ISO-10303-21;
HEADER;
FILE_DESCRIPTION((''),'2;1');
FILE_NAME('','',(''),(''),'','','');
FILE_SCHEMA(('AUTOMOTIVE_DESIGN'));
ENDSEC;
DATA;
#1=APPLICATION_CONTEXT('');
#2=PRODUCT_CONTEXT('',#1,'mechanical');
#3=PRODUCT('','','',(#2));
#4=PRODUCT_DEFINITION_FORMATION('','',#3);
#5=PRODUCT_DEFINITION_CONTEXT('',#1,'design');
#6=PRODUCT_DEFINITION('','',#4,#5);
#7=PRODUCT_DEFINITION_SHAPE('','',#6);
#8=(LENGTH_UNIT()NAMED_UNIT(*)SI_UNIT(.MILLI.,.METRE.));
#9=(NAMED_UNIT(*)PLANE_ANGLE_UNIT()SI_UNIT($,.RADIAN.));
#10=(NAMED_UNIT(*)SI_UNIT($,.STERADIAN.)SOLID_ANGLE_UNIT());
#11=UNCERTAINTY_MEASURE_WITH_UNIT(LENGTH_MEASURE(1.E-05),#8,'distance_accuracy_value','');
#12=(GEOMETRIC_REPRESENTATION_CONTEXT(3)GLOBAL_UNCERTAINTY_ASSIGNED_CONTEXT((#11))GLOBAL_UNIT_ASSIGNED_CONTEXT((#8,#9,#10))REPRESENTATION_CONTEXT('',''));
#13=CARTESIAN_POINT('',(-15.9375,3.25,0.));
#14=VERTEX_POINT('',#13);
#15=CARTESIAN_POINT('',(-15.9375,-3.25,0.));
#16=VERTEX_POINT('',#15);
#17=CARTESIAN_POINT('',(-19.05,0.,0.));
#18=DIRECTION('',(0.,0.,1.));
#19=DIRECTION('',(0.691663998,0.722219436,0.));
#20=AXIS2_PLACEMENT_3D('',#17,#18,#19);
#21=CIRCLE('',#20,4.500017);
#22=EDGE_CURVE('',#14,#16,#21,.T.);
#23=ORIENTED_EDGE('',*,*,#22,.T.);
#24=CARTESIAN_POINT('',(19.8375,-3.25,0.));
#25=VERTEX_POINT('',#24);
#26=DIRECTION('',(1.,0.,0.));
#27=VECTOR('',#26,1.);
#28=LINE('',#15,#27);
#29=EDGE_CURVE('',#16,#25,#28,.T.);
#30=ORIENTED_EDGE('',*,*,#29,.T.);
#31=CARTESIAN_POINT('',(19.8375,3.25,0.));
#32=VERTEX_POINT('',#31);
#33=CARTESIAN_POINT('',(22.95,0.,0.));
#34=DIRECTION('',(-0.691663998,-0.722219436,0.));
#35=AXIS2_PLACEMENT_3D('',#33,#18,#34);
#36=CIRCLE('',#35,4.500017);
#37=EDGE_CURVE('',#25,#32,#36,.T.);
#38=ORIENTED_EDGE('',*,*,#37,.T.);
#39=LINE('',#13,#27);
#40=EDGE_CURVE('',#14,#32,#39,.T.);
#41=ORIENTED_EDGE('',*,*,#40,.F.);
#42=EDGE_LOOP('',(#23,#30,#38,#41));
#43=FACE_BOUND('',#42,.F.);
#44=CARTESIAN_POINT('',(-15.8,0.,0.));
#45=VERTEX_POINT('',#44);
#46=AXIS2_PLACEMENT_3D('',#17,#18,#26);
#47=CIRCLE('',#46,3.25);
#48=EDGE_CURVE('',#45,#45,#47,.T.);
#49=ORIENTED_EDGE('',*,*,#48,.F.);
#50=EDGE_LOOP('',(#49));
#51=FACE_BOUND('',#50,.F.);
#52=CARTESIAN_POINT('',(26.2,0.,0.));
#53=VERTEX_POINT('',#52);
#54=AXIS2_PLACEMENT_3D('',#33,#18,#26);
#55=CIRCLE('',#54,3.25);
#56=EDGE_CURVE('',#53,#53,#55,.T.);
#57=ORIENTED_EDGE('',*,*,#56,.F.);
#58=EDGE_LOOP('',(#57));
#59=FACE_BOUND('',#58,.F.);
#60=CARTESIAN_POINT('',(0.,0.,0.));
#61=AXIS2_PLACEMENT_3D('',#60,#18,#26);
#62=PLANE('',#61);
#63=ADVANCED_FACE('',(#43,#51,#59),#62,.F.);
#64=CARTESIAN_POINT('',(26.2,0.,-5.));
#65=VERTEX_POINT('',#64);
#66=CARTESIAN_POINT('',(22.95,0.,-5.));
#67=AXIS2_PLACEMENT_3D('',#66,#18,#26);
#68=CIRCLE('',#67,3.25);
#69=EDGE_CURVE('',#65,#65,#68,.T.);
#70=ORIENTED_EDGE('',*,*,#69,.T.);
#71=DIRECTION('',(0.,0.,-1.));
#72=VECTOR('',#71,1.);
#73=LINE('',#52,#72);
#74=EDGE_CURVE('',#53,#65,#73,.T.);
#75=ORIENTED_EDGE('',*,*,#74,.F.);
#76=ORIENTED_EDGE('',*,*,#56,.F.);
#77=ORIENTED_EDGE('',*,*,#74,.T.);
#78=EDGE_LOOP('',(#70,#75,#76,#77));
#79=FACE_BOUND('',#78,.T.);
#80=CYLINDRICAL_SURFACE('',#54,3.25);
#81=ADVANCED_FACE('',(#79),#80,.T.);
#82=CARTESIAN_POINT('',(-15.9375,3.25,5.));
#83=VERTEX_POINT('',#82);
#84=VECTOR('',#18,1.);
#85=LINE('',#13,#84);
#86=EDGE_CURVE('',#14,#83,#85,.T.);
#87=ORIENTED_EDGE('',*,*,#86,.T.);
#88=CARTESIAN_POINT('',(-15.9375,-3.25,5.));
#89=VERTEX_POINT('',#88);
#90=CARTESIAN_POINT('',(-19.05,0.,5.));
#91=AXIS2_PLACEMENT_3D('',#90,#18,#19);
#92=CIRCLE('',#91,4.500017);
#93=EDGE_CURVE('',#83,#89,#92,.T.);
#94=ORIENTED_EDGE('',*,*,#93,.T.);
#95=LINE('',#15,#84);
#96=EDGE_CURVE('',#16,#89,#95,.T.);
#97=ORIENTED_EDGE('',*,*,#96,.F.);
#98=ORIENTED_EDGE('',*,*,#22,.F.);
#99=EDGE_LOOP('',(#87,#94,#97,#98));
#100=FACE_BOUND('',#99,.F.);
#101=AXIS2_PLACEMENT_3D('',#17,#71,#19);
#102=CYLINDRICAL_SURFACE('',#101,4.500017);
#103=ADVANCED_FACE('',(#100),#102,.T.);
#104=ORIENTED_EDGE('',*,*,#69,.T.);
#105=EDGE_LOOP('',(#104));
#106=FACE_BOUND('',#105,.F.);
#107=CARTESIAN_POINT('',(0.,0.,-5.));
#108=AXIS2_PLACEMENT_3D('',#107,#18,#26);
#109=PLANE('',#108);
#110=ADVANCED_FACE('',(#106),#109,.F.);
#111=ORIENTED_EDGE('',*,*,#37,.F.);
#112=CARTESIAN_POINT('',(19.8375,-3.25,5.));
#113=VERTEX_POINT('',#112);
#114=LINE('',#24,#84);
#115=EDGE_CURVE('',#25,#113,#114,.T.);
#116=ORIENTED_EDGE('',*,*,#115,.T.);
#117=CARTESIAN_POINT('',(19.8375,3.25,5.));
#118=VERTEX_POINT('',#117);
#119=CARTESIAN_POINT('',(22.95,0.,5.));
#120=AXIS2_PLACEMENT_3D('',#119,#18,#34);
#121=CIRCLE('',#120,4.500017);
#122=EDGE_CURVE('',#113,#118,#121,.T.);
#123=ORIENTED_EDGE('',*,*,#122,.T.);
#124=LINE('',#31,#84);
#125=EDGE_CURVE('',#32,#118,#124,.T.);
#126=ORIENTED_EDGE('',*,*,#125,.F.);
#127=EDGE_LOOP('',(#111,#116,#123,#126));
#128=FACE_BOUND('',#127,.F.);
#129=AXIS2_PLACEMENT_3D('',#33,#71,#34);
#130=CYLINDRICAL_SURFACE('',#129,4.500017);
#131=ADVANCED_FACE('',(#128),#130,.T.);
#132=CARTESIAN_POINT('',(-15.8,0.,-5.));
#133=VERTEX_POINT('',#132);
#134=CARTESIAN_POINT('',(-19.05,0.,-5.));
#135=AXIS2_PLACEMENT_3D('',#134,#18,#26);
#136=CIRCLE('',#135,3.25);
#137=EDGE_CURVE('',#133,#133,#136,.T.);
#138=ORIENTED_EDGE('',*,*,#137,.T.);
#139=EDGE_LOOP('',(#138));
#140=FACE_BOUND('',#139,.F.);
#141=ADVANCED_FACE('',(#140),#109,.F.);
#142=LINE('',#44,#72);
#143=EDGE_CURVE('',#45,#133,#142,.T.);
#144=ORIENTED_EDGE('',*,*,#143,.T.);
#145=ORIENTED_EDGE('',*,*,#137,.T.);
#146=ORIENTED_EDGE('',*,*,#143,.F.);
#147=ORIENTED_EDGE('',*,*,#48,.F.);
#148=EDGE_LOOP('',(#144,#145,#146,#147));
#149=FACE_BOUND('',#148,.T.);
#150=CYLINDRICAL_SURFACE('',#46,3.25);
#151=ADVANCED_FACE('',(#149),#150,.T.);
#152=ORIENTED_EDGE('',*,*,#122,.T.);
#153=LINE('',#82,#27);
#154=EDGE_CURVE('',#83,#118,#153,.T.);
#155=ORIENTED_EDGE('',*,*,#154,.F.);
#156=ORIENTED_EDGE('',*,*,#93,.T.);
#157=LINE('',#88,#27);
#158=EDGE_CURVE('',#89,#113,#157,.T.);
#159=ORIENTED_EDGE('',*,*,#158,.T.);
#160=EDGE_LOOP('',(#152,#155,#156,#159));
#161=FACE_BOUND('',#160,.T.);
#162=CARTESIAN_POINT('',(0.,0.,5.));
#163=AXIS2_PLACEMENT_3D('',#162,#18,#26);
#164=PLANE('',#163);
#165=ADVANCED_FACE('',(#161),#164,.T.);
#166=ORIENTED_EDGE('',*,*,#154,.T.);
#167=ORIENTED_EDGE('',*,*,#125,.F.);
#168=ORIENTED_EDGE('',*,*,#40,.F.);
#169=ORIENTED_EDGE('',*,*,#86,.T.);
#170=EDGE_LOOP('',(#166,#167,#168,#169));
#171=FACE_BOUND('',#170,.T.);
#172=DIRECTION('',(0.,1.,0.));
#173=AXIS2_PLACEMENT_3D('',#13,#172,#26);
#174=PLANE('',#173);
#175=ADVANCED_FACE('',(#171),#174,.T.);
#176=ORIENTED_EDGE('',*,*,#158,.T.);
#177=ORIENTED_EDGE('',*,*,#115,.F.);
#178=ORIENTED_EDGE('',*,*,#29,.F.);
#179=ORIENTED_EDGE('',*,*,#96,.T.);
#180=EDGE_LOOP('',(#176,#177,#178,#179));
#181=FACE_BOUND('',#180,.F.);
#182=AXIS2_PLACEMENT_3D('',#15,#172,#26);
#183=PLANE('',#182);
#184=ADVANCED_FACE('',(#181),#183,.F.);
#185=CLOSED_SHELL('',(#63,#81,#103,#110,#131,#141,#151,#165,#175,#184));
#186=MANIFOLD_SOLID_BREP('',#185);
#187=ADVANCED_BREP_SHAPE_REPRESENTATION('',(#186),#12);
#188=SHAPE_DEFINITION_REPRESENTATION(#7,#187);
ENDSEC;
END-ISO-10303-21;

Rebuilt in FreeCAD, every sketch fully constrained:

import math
import FreeCAD as App
import Part
import Sketcher

V = App.Vector
Q = App.Units.Quantity

doc = App.newDocument("Part")
body = doc.addObject("PartDesign::Body", "Body")

sketch1 = body.newObject("Sketcher::SketchObject", "Sketch")
sketch1.AttachmentSupport = (doc.getObject("XY_Plane"), [""])
sketch1.MapMode = "FlatFace"
sketch1.addGeometry([
    Part.LineSegment(V(19.8375, 3.25, 0), V(-15.9375, 3.25, 0)),
    Part.ArcOfCircle(Part.Circle(V(-19.05, 0, 0), V(0, 0, 1), 4.500017), math.radians(46.238026), math.radians(313.761974)),
    Part.LineSegment(V(-15.9375, -3.25, 0), V(19.8375, -3.25, 0)),
    Part.ArcOfCircle(Part.Circle(V(22.95, 0, 0), V(0, 0, 1), 4.500017), math.radians(-133.761974), math.radians(133.761974)),
], False)
sketch1.addConstraint([
    Sketcher.Constraint("Coincident", 0, 2, 1, 1),
    Sketcher.Constraint("Coincident", 1, 2, 2, 1),
    Sketcher.Constraint("Coincident", 2, 2, 3, 1),
    Sketcher.Constraint("Coincident", 3, 2, 0, 1),
    Sketcher.Constraint("Horizontal", 0),
    Sketcher.Constraint("Horizontal", 2),
    Sketcher.Constraint("Equal", 1, 3),
    Sketcher.Constraint("Symmetric", 0, 2, 1, 2, -1),
    Sketcher.Constraint("PointOnObject", 3, 3, -1),
    Sketcher.Constraint("Radius", 1, Q("4.5 mm")),
    Sketcher.Constraint("DistanceX", 1, 3, 3, 3, Q("42 mm")),
    Sketcher.Constraint("DistanceY", 1, 2, 0, 2, Q("6.5 mm")),
    Sketcher.Constraint("DistanceX", 1, 3, -1, 1, Q("19.05 mm")),
])
pad1 = body.newObject("PartDesign::Pad", "Pad")
pad1.Profile = sketch1
pad1.Length = 5

sketch2 = body.newObject("Sketcher::SketchObject", "Sketch001")
sketch2.AttachmentSupport = (doc.getObject("XY_Plane"), [""])
sketch2.MapMode = "FlatFace"
sketch2.addGeometry([
    Part.Circle(V(-19.05, 0, 0), V(0, 0, 1), 3.25),
    Part.Circle(V(22.95, 0, 0), V(0, 0, 1), 3.25),
], False)
sketch2.addConstraint([
    Sketcher.Constraint("Equal", 0, 1),
    Sketcher.Constraint("PointOnObject", 0, 3, -1),
    Sketcher.Constraint("PointOnObject", 1, 3, -1),
    Sketcher.Constraint("Diameter", 0, Q("6.5 mm")),
    Sketcher.Constraint("DistanceX", 0, 3, 1, 3, Q("42 mm")),
    Sketcher.Constraint("DistanceX", 0, 3, -1, 1, Q("19.05 mm")),
])
pad2 = body.newObject("PartDesign::Pad", "Pad001")
pad2.Profile = sketch2
pad2.Length = 5
pad2.Reversed = True

doc.recompute()
